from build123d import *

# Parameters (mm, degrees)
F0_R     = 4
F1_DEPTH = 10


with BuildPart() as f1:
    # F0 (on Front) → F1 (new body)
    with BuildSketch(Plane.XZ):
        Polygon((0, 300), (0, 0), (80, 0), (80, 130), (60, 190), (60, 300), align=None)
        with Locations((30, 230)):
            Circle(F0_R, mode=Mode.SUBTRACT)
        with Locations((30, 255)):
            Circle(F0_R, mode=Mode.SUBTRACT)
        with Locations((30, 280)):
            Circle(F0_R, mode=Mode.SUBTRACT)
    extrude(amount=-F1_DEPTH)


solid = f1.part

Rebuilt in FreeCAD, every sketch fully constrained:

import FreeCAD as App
import Part
import Sketcher
Q = App.Units.Quantity


def add_polygon(sketch, points):
    """Adds a closed chain of lines whose ends are joined by coincident constraints."""
    first, n = sketch.GeometryCount, len(points)
    for a, b in zip(points, points[1:] + points[:1]):
        sketch.addGeometry(Part.LineSegment(App.Vector(*a, 0), App.Vector(*b, 0)), False)
    for i in range(n):
        sketch.addConstraint(Sketcher.Constraint("Coincident", first + i, 2, first + (i + 1) % n, 1))

doc = App.newDocument("Part")
body = doc.addObject("PartDesign::Body", "Body")

sketch1 = body.newObject("Sketcher::SketchObject", "Sketch")
sketch1.AttachmentSupport = (doc.getObject("XZ_Plane"), [""])
sketch1.MapMode = "FlatFace"
add_polygon(sketch1, [(0, 300), (0, 0), (80, 0), (80, 130), (60, 190), (60, 300)])
sketch1.addGeometry(Part.Circle(App.Vector(30, 230, 0), App.Vector(0, 0, 1), 4), False)
sketch1.addGeometry(Part.Circle(App.Vector(30, 255, 0), App.Vector(0, 0, 1), 4), False)
sketch1.addGeometry(Part.Circle(App.Vector(30, 280, 0), App.Vector(0, 0, 1), 4), False)
sketch1.addConstraint([
    Sketcher.Constraint("Vertical", 0),
    Sketcher.Constraint("Horizontal", 1),
    Sketcher.Constraint("Vertical", 2),
    Sketcher.Constraint("Vertical", 4),
    Sketcher.Constraint("Horizontal", 5),
    Sketcher.Constraint("Coincident", 0, 2, -1, 1),
    Sketcher.Constraint("Equal", 6, 7),
    Sketcher.Constraint("Equal", 7, 8),
    Sketcher.Constraint("Vertical", 6, 3, 7, 3),
    Sketcher.Constraint("Vertical", 7, 3, 8, 3),
    Sketcher.Constraint("Diameter", 6, Q("8 mm")),
    Sketcher.Constraint("DistanceX", 1, 1, 1, 2, Q("80 mm")),
    Sketcher.Constraint("DistanceX", 5, 2, 5, 1, Q("60 mm")),
    Sketcher.Constraint("DistanceY", 0, 2, 0, 1, Q("300 mm")),
    Sketcher.Constraint("DistanceY", 2, 1, 2, 2, Q("130 mm")),
    Sketcher.Constraint("DistanceY", 4, 1, 4, 2, Q("110 mm")),
    Sketcher.Constraint("DistanceX", -1, 1, 6, 3, Q("30 mm")),
    Sketcher.Constraint("DistanceY", -1, 1, 6, 3, Q("230 mm")),
    Sketcher.Constraint("DistanceY", -1, 1, 7, 3, Q("255 mm")),
    Sketcher.Constraint("DistanceY", -1, 1, 8, 3, Q("280 mm")),
])
pad1 = body.newObject("PartDesign::Pad", "Pad")
pad1.Profile = sketch1
pad1.Length = 10
pad1.Reversed = True

doc.recompute()
